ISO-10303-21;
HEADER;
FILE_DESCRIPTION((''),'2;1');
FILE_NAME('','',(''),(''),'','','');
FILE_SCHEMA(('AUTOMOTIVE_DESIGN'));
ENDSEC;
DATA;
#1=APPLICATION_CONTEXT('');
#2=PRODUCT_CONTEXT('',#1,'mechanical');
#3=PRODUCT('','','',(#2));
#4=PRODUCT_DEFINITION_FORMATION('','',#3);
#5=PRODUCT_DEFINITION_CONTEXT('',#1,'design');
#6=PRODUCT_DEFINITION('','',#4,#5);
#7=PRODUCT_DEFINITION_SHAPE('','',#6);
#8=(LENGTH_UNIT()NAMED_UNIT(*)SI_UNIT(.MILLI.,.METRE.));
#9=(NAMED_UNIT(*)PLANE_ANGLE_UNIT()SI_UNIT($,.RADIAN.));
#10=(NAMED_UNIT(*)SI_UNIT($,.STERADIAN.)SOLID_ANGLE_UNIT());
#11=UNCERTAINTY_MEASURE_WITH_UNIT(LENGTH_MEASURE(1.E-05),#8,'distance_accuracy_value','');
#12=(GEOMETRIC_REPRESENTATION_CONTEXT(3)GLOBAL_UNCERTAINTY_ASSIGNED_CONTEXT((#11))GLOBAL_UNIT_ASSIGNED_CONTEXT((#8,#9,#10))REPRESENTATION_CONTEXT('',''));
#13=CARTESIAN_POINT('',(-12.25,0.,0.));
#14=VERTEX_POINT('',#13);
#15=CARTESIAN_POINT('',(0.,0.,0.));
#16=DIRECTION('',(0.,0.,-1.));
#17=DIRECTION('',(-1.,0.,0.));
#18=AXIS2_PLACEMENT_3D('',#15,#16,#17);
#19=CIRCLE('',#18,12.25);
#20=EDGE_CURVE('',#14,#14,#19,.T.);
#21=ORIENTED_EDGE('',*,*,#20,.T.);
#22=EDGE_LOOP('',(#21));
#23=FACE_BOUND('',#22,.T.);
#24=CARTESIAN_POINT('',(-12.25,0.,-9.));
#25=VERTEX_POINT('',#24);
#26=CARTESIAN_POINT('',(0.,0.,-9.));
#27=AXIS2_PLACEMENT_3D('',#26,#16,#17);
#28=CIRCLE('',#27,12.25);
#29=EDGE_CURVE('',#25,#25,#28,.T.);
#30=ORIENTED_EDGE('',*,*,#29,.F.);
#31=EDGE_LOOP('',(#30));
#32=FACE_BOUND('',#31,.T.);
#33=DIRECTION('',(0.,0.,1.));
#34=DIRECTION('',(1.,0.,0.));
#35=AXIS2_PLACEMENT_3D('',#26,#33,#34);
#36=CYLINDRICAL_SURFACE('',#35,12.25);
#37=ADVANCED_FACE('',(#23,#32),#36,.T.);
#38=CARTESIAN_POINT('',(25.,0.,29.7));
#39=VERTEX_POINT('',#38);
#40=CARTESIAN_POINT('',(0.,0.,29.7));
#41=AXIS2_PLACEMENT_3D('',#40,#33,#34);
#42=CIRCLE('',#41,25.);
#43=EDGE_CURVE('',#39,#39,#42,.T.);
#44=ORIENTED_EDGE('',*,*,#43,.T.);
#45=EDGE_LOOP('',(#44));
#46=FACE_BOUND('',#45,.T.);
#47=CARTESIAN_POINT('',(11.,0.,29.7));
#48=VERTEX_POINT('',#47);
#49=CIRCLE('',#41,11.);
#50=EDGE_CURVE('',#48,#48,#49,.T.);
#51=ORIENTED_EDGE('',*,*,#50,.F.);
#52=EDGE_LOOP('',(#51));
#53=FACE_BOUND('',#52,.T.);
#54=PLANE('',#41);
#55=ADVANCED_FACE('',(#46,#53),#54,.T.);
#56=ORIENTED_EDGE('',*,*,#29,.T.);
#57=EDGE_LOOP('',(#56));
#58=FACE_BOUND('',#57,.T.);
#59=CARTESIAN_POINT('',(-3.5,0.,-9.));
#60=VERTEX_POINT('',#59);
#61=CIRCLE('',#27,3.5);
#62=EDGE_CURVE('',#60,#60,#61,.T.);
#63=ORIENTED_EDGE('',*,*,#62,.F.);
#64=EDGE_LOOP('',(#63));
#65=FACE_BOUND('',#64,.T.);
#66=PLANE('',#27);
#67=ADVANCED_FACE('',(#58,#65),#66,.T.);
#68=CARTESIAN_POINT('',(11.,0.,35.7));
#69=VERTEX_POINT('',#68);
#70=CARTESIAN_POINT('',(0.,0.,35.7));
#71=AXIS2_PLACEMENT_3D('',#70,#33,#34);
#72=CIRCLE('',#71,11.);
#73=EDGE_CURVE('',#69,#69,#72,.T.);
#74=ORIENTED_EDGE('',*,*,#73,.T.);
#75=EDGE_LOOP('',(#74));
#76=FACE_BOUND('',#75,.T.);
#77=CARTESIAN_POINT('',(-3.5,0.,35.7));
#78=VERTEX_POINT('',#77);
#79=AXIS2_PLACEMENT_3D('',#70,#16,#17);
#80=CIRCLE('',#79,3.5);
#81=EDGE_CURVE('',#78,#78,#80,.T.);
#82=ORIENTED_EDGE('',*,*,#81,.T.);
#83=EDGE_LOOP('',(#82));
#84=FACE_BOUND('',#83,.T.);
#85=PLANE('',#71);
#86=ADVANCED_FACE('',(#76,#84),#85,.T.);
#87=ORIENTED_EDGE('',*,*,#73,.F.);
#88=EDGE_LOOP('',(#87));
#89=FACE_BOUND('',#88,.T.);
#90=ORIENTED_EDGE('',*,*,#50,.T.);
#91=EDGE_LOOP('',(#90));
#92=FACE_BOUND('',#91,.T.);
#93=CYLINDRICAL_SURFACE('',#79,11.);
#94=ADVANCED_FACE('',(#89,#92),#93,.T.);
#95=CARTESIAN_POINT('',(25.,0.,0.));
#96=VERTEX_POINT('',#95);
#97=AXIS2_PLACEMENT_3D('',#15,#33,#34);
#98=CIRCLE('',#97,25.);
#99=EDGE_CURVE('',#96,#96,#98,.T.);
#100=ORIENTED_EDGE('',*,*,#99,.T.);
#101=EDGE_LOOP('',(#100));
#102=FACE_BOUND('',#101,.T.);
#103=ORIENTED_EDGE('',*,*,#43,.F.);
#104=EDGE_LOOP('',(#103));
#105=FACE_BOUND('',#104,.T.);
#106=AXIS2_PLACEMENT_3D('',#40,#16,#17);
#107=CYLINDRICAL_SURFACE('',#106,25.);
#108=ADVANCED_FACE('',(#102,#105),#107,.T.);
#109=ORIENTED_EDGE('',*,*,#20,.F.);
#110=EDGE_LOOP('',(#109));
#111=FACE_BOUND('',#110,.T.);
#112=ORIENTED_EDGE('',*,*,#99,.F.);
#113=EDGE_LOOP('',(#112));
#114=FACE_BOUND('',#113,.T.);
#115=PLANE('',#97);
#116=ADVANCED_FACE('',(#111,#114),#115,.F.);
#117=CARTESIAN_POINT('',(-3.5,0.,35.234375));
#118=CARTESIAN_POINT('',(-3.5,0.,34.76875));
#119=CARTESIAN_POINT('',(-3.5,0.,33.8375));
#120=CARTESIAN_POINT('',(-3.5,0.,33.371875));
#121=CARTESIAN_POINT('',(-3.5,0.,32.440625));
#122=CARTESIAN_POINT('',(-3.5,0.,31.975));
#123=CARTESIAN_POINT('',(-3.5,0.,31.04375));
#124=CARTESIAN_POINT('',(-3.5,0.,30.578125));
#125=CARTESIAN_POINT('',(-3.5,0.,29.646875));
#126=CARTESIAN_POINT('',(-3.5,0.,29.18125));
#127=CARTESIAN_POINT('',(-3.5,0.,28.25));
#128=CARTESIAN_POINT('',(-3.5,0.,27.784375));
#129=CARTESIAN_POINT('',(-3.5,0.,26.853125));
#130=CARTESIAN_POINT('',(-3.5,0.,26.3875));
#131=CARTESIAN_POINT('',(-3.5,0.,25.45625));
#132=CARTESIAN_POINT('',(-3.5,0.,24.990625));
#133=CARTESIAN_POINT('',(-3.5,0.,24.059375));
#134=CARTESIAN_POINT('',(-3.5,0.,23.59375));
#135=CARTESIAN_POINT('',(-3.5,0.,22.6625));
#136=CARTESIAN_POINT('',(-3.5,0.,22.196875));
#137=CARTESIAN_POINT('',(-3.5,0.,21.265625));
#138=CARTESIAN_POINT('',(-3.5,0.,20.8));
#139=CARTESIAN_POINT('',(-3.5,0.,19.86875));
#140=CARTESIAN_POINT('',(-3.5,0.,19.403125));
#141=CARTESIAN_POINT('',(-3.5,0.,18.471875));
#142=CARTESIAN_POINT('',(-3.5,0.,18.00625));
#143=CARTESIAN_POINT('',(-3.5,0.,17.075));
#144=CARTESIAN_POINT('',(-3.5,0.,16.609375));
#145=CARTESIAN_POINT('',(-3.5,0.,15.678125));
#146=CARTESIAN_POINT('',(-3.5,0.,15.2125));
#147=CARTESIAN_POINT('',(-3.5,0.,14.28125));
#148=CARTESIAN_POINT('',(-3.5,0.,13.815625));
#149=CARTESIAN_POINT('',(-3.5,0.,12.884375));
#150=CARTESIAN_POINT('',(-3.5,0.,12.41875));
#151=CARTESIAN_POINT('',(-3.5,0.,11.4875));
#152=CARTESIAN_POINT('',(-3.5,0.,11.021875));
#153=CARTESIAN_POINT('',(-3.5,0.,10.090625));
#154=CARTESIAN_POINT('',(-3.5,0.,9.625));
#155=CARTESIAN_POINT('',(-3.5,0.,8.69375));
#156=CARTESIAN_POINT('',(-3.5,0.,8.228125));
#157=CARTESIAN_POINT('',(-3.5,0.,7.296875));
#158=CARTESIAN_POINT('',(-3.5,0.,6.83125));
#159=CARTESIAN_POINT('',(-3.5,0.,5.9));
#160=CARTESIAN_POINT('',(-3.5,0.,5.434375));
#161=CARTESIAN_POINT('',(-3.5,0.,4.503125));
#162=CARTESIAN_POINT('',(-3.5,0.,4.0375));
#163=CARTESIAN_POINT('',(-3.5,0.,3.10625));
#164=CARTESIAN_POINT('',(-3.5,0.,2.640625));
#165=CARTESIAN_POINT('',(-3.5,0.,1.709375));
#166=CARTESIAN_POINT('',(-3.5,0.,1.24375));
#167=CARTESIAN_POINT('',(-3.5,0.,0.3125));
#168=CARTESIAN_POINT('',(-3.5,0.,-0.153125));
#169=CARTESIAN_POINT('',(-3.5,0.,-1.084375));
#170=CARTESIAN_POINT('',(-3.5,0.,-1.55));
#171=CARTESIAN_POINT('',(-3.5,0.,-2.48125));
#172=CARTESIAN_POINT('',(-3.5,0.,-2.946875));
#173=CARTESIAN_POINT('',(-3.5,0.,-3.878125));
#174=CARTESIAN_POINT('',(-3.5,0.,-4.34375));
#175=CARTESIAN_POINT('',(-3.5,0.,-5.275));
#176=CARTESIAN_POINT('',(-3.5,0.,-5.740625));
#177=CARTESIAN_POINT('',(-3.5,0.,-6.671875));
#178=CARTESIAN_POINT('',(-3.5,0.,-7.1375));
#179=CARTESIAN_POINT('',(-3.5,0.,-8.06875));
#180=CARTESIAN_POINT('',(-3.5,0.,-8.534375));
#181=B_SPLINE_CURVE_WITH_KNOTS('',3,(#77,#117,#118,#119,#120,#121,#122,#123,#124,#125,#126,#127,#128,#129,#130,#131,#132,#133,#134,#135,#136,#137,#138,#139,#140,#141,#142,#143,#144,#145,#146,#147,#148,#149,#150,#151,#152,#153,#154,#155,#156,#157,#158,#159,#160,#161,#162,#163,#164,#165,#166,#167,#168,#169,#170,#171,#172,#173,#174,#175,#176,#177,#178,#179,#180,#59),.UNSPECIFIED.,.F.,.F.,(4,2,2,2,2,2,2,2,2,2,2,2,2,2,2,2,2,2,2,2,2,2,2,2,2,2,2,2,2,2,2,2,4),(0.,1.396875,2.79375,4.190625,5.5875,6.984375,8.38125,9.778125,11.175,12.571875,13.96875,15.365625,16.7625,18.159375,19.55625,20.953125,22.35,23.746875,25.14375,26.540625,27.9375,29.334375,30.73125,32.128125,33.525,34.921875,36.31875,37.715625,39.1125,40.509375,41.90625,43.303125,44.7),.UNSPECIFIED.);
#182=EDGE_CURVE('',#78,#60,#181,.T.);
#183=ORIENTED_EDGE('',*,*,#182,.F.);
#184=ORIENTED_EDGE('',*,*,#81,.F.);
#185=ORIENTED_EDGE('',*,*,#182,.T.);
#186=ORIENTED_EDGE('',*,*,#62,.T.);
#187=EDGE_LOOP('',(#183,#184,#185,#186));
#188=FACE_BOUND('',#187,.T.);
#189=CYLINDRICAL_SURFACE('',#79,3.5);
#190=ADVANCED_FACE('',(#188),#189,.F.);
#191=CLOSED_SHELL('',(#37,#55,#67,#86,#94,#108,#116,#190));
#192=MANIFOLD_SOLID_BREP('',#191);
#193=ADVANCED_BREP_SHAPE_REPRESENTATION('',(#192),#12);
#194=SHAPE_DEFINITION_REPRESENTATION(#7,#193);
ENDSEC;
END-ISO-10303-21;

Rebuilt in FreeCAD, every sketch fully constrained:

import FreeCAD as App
import Part
import Sketcher

V = App.Vector

doc = App.newDocument("Part")
body = doc.addObject("PartDesign::Body", "Body")

# Sketch on XY plane
sketch1 = body.newObject("Sketcher::SketchObject", "Sketch")
sketch1.AttachmentSupport = (doc.getObject("XY_Plane"), [""])
sketch1.MapMode = "FlatFace"
sketch1.addGeometry(Part.Circle(V(0, 0, 0), V(0, 0, 1), 25), False)
sketch1.addConstraint([
    Sketcher.Constraint("Coincident", 0, 3, -1, 1),
    Sketcher.Constraint("Diameter", 0, 50.0),
])
pad1 = body.newObject("PartDesign::Pad", "Pad")
pad1.Profile = sketch1
pad1.Length = 29.7

# Sketch on XY plane
sketch2 = body.newObject("Sketcher::SketchObject", "Sketch001")
sketch2.AttachmentSupport = (doc.getObject("XY_Plane"), [""])
sketch2.MapMode = "FlatFace"
sketch2.AttachmentOffset = App.Placement(V(0, 0, 29.7), App.Rotation())
sketch2.addGeometry(Part.Circle(V(0, 0, 0), V(0, 0, 1), 11), False)
sketch2.addConstraint([
    Sketcher.Constraint("Coincident", 0, 3, -1, 1),
    Sketcher.Constraint("Diameter", 0, 22.0),
])
pad2 = body.newObject("PartDesign::Pad", "Pad001")
pad2.Profile = sketch2
pad2.Length = 6

# Sketch on XY plane
sketch3 = body.newObject("Sketcher::SketchObject", "Sketch002")
sketch3.AttachmentSupport = (doc.getObject("XY_Plane"), [""])
sketch3.MapMode = "FlatFace"
sketch3.addGeometry(Part.Circle(V(0, 0, 0), V(0, 0, 1), 12), False)
sketch3.addConstraint([
    Sketcher.Constraint("Coincident", 0, 3, -1, 1),
    Sketcher.Constraint("Diameter", 0, 24.5),
])
pad3 = body.newObject("PartDesign::Pad", "Pad002")
pad3.Profile = sketch3
pad3.Length = 9
pad3.Reversed = True

# Sketch on XY plane
sketch4 = body.newObject("Sketcher::SketchObject", "Sketch003")
sketch4.AttachmentSupport = (doc.getObject("XY_Plane"), [""])
sketch4.MapMode = "FlatFace"
sketch4.AttachmentOffset = App.Placement(V(0, 0, -9), App.Rotation())
sketch4.addGeometry(Part.Circle(V(0, 0, 0), V(0, 0, 1), 3.5), False)
sketch4.addConstraint([
    Sketcher.Constraint("Coincident", 0, 3, -1, 1),
    Sketcher.Constraint("Diameter", 0, 7.0),
])
pocket1 = body.newObject("PartDesign::Pocket", "Pocket")
pocket1.Profile = sketch4
pocket1.Type = "ThroughAll"
pocket1.Reversed = True

doc.recompute()
